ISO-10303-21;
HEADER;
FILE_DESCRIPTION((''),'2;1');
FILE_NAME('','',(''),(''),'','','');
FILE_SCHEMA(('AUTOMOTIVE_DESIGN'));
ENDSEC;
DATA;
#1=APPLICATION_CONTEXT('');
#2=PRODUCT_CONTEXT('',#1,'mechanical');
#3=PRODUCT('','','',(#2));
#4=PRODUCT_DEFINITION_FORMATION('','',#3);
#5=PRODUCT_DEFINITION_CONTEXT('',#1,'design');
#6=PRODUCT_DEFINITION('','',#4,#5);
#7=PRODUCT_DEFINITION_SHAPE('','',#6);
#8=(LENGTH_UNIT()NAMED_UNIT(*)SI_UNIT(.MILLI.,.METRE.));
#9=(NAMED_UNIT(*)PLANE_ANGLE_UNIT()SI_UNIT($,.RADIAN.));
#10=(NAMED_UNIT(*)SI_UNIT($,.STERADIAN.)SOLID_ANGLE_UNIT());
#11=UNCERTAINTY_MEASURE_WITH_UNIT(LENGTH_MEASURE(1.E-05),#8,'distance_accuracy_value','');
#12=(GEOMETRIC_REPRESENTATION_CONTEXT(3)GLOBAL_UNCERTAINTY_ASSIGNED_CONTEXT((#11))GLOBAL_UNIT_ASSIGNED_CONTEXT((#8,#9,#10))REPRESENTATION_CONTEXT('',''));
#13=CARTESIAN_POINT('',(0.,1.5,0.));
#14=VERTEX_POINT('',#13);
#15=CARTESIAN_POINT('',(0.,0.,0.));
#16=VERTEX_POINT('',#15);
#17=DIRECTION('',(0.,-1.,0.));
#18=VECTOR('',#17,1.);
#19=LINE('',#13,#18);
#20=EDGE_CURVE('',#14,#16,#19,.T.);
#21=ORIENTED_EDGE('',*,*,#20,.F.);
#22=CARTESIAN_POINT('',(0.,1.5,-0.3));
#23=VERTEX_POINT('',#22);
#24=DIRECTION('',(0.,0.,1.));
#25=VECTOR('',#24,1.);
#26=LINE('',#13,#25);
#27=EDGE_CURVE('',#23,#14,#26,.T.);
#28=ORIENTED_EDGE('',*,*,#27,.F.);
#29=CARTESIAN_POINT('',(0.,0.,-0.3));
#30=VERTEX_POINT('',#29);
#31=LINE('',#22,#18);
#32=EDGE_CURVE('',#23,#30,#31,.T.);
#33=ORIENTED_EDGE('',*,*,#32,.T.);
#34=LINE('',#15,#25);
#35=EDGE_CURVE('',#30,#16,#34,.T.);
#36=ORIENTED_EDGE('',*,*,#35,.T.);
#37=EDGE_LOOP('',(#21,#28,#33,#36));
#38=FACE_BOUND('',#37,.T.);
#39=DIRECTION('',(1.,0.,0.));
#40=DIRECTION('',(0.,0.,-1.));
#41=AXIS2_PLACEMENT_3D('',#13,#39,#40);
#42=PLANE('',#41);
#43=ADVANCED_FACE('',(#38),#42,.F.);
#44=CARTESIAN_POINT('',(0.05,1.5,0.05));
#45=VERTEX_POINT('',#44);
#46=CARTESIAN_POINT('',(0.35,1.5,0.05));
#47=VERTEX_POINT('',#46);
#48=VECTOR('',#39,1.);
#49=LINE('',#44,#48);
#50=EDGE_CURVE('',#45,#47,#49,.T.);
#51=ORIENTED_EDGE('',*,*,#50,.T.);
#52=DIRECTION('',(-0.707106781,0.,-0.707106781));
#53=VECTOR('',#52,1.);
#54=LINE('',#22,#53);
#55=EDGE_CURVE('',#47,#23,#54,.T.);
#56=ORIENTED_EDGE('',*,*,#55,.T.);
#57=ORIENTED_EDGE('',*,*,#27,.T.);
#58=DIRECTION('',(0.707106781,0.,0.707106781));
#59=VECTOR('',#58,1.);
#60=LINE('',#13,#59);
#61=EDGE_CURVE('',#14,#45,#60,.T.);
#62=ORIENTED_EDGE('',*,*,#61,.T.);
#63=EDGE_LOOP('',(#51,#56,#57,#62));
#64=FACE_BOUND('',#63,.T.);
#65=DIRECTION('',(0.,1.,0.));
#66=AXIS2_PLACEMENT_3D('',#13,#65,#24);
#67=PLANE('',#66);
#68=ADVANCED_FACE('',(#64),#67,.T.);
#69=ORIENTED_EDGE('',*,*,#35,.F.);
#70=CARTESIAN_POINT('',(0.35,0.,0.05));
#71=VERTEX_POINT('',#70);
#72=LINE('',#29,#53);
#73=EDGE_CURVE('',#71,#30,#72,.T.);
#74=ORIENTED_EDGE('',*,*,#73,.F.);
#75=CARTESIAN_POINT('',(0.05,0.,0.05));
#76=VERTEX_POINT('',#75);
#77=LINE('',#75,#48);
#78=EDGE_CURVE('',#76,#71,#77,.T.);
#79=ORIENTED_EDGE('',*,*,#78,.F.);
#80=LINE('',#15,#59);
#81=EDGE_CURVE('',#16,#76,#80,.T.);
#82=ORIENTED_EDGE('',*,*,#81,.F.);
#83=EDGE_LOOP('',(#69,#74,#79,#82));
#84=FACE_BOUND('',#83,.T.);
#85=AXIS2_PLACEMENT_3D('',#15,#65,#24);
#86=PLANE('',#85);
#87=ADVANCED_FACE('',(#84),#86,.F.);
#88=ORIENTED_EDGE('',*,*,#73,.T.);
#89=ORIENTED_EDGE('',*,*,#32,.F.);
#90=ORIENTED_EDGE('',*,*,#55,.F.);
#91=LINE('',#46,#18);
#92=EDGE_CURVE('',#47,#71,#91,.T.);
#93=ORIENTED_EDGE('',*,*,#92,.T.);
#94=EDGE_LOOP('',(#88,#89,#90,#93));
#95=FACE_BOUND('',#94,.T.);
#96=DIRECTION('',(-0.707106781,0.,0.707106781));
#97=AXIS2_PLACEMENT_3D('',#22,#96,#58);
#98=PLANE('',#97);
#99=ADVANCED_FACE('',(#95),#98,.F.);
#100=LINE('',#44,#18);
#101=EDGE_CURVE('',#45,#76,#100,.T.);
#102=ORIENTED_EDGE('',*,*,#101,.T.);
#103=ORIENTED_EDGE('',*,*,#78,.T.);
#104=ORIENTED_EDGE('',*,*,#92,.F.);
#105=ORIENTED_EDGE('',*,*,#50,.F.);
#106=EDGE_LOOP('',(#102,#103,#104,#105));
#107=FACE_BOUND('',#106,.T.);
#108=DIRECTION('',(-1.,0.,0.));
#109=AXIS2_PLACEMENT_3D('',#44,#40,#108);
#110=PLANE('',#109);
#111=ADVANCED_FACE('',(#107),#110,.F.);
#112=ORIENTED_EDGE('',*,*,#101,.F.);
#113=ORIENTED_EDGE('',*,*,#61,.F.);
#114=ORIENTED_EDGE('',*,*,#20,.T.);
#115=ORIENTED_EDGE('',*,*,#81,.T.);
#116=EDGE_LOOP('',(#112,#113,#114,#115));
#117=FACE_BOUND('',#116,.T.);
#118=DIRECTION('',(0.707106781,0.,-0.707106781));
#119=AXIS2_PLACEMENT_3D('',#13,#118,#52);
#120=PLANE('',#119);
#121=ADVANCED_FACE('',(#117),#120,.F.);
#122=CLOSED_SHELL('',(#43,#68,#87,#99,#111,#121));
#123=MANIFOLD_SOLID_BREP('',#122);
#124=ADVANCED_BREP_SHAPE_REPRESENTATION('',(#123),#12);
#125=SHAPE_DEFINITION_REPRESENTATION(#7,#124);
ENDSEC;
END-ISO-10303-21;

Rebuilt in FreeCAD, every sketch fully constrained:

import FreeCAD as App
import Part
import Sketcher

doc = App.newDocument("Part")
body = doc.addObject("PartDesign::Body", "Body")

# Sketch on XZ plane
sketch1 = body.newObject("Sketcher::SketchObject", "Sketch")
sketch1.AttachmentSupport = (doc.getObject("XZ_Plane"), [""])
sketch1.MapMode = "FlatFace"
sketch1.addGeometry([
    Part.LineSegment(App.Vector(0, -0.3, 0), App.Vector(0, 0, 0)),
    Part.LineSegment(App.Vector(0, 0, 0), App.Vector(0.05, 0.05, 0)),
    Part.LineSegment(App.Vector(0.05, 0.05, 0), App.Vector(0.35, 0.05, 0)),
    Part.LineSegment(App.Vector(0.35, 0.05, 0), App.Vector(0, -0.3, 0)),
], False)
sketch1.addConstraint([
    Sketcher.Constraint("Coincident", 0, 2, 1, 1),
    Sketcher.Constraint("Coincident", 1, 2, 2, 1),
    Sketcher.Constraint("Coincident", 2, 2, 3, 1),
    Sketcher.Constraint("Coincident", 3, 2, 0, 1),
    Sketcher.Constraint("Vertical", 0),
    Sketcher.Constraint("Horizontal", 2),
    Sketcher.Constraint("Coincident", 0, 2, -1, 1),
    Sketcher.Constraint("Parallel", 1, 3),
    Sketcher.Constraint("Equal", 2, 0),
    Sketcher.Constraint("DistanceX", 2, 1, 2, 2, 0.3),
    Sketcher.Constraint("DistanceX", -1, 1, 1, 2, 0.05),
])
pad1 = body.newObject("PartDesign::Pad", "Pad")
pad1.Profile = sketch1
pad1.Length = 1.5
pad1.Reversed = True

doc.recompute()
